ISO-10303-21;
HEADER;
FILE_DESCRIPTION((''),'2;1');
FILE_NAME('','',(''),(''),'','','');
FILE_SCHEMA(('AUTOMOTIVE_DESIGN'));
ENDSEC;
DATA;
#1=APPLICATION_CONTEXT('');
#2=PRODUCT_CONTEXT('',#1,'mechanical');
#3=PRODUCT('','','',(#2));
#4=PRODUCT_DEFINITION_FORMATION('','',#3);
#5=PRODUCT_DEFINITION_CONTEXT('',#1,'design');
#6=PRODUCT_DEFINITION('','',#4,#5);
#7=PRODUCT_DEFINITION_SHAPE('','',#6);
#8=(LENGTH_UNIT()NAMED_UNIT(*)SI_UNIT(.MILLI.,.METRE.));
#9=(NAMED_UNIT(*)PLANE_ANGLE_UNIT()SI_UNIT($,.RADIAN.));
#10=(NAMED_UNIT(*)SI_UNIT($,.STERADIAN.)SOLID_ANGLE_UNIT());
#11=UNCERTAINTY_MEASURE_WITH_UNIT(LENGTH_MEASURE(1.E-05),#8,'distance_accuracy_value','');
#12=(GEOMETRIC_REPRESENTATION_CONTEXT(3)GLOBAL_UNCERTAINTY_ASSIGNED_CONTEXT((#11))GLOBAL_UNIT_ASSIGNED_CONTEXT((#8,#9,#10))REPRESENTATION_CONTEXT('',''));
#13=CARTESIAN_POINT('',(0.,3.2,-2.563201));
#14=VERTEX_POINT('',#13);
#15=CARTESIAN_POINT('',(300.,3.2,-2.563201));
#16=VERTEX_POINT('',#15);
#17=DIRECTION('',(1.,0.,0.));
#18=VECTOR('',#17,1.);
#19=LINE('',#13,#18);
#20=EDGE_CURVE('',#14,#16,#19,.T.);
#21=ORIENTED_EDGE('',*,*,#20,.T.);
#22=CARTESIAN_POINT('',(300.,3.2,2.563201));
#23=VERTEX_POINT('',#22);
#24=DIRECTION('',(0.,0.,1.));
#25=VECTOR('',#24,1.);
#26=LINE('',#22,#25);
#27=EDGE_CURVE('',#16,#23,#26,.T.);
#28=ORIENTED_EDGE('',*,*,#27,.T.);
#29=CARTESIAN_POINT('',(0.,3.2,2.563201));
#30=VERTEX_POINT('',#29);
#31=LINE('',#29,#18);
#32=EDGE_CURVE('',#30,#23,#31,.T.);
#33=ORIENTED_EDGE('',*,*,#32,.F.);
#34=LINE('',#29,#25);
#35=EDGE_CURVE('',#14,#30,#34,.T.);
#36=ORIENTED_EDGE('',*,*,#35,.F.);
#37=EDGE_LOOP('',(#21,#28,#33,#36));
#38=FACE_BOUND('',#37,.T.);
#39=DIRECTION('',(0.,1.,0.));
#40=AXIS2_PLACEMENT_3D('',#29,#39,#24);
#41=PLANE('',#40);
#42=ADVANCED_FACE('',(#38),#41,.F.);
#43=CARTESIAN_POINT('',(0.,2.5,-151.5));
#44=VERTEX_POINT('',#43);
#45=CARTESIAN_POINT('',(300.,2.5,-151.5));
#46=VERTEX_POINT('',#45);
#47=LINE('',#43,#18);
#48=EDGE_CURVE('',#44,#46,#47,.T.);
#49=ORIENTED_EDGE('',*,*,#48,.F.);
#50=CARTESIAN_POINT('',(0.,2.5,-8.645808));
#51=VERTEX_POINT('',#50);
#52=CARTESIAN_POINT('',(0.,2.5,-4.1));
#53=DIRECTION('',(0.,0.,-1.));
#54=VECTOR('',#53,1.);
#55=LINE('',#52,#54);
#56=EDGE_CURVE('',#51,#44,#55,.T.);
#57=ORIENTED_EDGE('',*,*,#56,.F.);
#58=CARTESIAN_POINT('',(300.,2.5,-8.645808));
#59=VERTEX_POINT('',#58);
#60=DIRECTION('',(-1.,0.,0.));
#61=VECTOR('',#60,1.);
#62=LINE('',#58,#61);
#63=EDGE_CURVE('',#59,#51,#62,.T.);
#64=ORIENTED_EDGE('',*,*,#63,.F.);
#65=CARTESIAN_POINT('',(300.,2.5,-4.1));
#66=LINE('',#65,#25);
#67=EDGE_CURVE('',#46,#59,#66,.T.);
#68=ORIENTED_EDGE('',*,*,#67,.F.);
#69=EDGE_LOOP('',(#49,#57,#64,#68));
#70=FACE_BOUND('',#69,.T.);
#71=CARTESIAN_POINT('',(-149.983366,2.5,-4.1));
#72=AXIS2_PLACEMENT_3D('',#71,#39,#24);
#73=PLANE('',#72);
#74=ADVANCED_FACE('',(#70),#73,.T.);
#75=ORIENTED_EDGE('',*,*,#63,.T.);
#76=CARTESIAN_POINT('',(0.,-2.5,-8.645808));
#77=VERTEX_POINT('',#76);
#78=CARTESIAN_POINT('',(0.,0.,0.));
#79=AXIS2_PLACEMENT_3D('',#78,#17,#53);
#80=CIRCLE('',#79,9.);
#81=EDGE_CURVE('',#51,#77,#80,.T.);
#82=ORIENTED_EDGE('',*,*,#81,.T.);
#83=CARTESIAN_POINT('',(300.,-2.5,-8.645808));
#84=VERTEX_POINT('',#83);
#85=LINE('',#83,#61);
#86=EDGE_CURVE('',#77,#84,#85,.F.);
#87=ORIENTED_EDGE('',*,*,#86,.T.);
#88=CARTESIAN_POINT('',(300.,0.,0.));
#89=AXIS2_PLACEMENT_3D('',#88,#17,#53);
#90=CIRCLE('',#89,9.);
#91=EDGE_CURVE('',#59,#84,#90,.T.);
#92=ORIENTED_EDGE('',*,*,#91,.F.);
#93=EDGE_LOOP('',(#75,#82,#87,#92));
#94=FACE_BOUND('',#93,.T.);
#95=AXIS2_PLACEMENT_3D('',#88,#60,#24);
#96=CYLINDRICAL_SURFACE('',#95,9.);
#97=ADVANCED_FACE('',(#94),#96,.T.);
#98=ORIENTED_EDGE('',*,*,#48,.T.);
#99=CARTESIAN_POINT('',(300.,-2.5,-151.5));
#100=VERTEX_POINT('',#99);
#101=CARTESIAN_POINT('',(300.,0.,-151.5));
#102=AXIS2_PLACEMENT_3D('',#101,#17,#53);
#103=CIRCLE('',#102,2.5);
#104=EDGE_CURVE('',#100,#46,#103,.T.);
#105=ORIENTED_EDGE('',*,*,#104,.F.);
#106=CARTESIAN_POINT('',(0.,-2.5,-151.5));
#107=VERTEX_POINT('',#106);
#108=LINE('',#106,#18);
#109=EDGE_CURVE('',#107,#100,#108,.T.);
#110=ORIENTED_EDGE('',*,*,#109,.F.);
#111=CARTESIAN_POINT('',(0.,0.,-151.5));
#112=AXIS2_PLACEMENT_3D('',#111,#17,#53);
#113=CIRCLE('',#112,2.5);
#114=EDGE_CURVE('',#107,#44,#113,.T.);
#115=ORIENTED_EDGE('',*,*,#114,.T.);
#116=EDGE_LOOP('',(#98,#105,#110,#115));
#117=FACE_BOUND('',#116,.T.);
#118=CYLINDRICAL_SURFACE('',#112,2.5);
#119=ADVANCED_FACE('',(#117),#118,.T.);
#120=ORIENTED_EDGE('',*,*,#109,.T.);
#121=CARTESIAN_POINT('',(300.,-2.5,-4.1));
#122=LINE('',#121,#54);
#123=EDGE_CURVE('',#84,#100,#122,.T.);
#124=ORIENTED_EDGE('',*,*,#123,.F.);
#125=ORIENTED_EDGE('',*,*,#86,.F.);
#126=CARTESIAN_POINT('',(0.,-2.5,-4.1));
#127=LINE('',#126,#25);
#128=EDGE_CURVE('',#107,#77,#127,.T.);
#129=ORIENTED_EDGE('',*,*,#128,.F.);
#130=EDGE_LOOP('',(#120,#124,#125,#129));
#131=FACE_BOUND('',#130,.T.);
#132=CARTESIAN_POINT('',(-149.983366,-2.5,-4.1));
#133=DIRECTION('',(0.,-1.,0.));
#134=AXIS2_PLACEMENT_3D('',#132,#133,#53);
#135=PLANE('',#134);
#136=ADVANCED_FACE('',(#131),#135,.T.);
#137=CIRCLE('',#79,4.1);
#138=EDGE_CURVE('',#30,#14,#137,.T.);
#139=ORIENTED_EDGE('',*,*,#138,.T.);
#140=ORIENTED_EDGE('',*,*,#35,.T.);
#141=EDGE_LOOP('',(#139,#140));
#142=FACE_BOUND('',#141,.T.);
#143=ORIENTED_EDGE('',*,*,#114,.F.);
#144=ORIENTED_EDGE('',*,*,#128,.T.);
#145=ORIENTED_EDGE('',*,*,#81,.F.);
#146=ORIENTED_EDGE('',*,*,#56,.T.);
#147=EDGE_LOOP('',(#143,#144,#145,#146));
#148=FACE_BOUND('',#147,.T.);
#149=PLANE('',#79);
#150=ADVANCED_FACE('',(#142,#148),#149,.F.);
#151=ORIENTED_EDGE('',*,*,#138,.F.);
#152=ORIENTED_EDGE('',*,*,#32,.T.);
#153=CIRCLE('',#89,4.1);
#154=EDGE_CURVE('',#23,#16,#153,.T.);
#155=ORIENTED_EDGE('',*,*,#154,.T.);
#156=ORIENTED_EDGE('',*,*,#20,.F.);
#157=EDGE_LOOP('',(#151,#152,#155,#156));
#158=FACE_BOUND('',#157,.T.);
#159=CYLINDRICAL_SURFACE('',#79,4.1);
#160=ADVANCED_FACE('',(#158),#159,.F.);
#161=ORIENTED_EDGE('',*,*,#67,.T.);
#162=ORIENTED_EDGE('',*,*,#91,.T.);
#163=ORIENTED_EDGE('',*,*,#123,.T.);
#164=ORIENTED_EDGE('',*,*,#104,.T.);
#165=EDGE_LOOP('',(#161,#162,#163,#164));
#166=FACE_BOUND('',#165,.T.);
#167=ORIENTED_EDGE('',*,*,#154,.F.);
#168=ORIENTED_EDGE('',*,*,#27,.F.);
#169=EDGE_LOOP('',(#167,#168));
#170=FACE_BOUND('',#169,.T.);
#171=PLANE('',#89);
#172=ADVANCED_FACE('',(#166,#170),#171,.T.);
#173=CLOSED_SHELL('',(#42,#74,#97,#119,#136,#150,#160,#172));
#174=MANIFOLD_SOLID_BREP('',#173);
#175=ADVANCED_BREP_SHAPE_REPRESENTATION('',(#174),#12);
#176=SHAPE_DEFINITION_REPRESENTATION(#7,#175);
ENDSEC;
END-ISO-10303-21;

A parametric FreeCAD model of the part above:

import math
import FreeCAD as App
import Part
import Sketcher
from FreeCAD import Vector
Q = App.Units.Quantity

doc = App.newDocument("Part")
body = doc.addObject("PartDesign::Body", "Body")

# Sketch on YZ plane
sketch1 = doc.addObject("Sketcher::SketchObject", "Sketch")
body.addObject(sketch1)
sketch1.AttachmentSupport = (doc.YZ_Plane, [""])
sketch1.MapMode = "FlatFace"
sketch1.addGeometry(Part.Circle(Vector(0, 0, 0), Vector(0, 0, 1), 9), False)
sketch1.addConstraint(Sketcher.Constraint("Coincident", 0, 3, -1, 1))
sketch1.addConstraint(Sketcher.Constraint("Diameter", 0, Q("18 mm")))
pad1 = doc.addObject("PartDesign::Pad", "Pad")
body.addObject(pad1)
pad1.Profile = sketch1
pad1.Length = 300

# Sketch on YZ plane
sketch2 = doc.addObject("Sketcher::SketchObject", "Sketch001")
body.addObject(sketch2)
sketch2.AttachmentSupport = (doc.YZ_Plane, [""])
sketch2.MapMode = "FlatFace"
sketch2.AttachmentOffset = App.Placement(Vector(0, 0, 300), App.Rotation())
sketch2.addGeometry(Part.LineSegment(Vector(3.2, -2.6, 0), Vector(3.2, 2.6, 0)), False)
sketch2.addGeometry(Part.ArcOfCircle(Part.Circle(Vector(0, 0, 0), Vector(0, 0, 1), 4.1), math.radians(39), math.radians(321)), False)
sketch2.addConstraint(Sketcher.Constraint("Coincident", 0, 1, 1, 2))
sketch2.addConstraint(Sketcher.Constraint("Coincident", 1, 1, 0, 2))
sketch2.addConstraint(Sketcher.Constraint("Vertical", 0))
sketch2.addConstraint(Sketcher.Constraint("Coincident", 1, 3, -1, 1))
sketch2.addConstraint(Sketcher.Constraint("Radius", 1, Q("4.1 mm")))
sketch2.addConstraint(Sketcher.Constraint("DistanceX", -1, 1, 0, 1, Q("3.2 mm")))
pocket1 = doc.addObject("PartDesign::Pocket", "Pocket")
body.addObject(pocket1)
pocket1.Profile = sketch2
pocket1.Type = "ThroughAll"
pocket1.Midplane = True

# Sketch on YZ plane
sketch3 = doc.addObject("Sketcher::SketchObject", "Sketch002")
body.addObject(sketch3)
sketch3.AttachmentSupport = (doc.YZ_Plane, [""])
sketch3.MapMode = "FlatFace"
sketch3.AttachmentOffset = App.Placement(Vector(0, 0, 300), App.Rotation())
sketch3.addGeometry(Part.LineSegment(Vector(2, -4, 0), Vector(-2, -4, 0)), False)
sketch3.addGeometry(Part.LineSegment(Vector(-2, -4, 0), Vector(-2, -154, 0)), False)
sketch3.addGeometry(Part.LineSegment(Vector(-2, -154, 0), Vector(2, -154, 0)), False)
sketch3.addGeometry(Part.LineSegment(Vector(2, -154, 0), Vector(2, -4, 0)), False)
sketch3.addConstraint(Sketcher.Constraint("Coincident", 0, 2, 1, 1))
sketch3.addConstraint(Sketcher.Constraint("Coincident", 1, 2, 2, 1))
sketch3.addConstraint(Sketcher.Constraint("Coincident", 2, 2, 3, 1))
sketch3.addConstraint(Sketcher.Constraint("Coincident", 3, 2, 0, 1))
sketch3.addConstraint(Sketcher.Constraint("Horizontal", 0))
sketch3.addConstraint(Sketcher.Constraint("Vertical", 1))
sketch3.addConstraint(Sketcher.Constraint("Horizontal", 2))
sketch3.addConstraint(Sketcher.Constraint("Vertical", 3))
sketch3.addConstraint(Sketcher.Constraint("DistanceX", 0, 2, 0, 1, Q("5 mm")))
sketch3.addConstraint(Sketcher.Constraint("DistanceY", 1, 2, 1, 1, Q("149.9 mm")))
sketch3.addConstraint(Sketcher.Constraint("DistanceY", 1, 2, -1, 1, Q("154 mm")))
sketch3.addConstraint(Sketcher.Constraint("DistanceX", 0, 2, -1, 1, Q("2.5 mm")))
pad2 = doc.addObject("PartDesign::Pad", "Pad001")
body.addObject(pad2)
pad2.Profile = sketch3
pad2.Length = 300
pad2.Reversed = True

# Sketch on YZ plane
sketch4 = doc.addObject("Sketcher::SketchObject", "Sketch003")
body.addObject(sketch4)
sketch4.AttachmentSupport = (doc.YZ_Plane, [""])
sketch4.MapMode = "FlatFace"
sketch4.AttachmentOffset = App.Placement(Vector(0, 0, 300), App.Rotation())
sketch4.addGeometry(Part.LineSegment(Vector(2.5, -154, 0), Vector(2.5, -151.5, 0)), False)
sketch4.addGeometry(Part.ArcOfCircle(Part.Circle(Vector(0, -151.5, 0), Vector(0, 0, 1), 2.5), math.radians(-90), math.radians(0)), False)
sketch4.addGeometry(Part.LineSegment(Vector(0, -154, 0), Vector(2.5, -154, 0)), False)
sketch4.addGeometry(Part.LineSegment(Vector(-2.5, -154, 0), Vector(0, -154, 0)), False)
sketch4.addGeometry(Part.ArcOfCircle(Part.Circle(Vector(0, -151.5, 0), Vector(0, 0, 1), 2.5), math.radians(180), math.radians(270)), False)
sketch4.addGeometry(Part.LineSegment(Vector(-2.5, -151.5, 0), Vector(-2.5, -154, 0)), False)
sketch4.addConstraint(Sketcher.Constraint("Tangent", 0, 2, 1, 2))
sketch4.addConstraint(Sketcher.Constraint("Tangent", 1, 1, 2, 1))
sketch4.addConstraint(Sketcher.Constraint("Coincident", 2, 2, 0, 1))
sketch4.addConstraint(Sketcher.Constraint("Tangent", 3, 2, 4, 2))
sketch4.addConstraint(Sketcher.Constraint("Tangent", 4, 1, 5, 1))
sketch4.addConstraint(Sketcher.Constraint("Coincident", 5, 2, 3, 1))
sketch4.addConstraint(Sketcher.Constraint("Vertical", 0))
sketch4.addConstraint(Sketcher.Constraint("Horizontal", 2))
sketch4.addConstraint(Sketcher.Constraint("Horizontal", 3))
sketch4.addConstraint(Sketcher.Constraint("Vertical", 5))
sketch4.addConstraint(Sketcher.Constraint("Coincident", 4, 3, 1, 3))
sketch4.addConstraint(Sketcher.Constraint("Equal", 1, 4))
sketch4.addConstraint(Sketcher.Constraint("PointOnObject", 1, 3, -2))
sketch4.addConstraint(Sketcher.Constraint("Radius", 1, Q("2.5 mm")))
sketch4.addConstraint(Sketcher.Constraint("DistanceY", 1, 1, -1, 1, Q("154 mm")))
pocket2 = doc.addObject("PartDesign::Pocket", "Pocket001")
body.addObject(pocket2)
pocket2.Profile = sketch4
pocket2.Type = "ThroughAll"
pocket2.Midplane = True

doc.recompute()
